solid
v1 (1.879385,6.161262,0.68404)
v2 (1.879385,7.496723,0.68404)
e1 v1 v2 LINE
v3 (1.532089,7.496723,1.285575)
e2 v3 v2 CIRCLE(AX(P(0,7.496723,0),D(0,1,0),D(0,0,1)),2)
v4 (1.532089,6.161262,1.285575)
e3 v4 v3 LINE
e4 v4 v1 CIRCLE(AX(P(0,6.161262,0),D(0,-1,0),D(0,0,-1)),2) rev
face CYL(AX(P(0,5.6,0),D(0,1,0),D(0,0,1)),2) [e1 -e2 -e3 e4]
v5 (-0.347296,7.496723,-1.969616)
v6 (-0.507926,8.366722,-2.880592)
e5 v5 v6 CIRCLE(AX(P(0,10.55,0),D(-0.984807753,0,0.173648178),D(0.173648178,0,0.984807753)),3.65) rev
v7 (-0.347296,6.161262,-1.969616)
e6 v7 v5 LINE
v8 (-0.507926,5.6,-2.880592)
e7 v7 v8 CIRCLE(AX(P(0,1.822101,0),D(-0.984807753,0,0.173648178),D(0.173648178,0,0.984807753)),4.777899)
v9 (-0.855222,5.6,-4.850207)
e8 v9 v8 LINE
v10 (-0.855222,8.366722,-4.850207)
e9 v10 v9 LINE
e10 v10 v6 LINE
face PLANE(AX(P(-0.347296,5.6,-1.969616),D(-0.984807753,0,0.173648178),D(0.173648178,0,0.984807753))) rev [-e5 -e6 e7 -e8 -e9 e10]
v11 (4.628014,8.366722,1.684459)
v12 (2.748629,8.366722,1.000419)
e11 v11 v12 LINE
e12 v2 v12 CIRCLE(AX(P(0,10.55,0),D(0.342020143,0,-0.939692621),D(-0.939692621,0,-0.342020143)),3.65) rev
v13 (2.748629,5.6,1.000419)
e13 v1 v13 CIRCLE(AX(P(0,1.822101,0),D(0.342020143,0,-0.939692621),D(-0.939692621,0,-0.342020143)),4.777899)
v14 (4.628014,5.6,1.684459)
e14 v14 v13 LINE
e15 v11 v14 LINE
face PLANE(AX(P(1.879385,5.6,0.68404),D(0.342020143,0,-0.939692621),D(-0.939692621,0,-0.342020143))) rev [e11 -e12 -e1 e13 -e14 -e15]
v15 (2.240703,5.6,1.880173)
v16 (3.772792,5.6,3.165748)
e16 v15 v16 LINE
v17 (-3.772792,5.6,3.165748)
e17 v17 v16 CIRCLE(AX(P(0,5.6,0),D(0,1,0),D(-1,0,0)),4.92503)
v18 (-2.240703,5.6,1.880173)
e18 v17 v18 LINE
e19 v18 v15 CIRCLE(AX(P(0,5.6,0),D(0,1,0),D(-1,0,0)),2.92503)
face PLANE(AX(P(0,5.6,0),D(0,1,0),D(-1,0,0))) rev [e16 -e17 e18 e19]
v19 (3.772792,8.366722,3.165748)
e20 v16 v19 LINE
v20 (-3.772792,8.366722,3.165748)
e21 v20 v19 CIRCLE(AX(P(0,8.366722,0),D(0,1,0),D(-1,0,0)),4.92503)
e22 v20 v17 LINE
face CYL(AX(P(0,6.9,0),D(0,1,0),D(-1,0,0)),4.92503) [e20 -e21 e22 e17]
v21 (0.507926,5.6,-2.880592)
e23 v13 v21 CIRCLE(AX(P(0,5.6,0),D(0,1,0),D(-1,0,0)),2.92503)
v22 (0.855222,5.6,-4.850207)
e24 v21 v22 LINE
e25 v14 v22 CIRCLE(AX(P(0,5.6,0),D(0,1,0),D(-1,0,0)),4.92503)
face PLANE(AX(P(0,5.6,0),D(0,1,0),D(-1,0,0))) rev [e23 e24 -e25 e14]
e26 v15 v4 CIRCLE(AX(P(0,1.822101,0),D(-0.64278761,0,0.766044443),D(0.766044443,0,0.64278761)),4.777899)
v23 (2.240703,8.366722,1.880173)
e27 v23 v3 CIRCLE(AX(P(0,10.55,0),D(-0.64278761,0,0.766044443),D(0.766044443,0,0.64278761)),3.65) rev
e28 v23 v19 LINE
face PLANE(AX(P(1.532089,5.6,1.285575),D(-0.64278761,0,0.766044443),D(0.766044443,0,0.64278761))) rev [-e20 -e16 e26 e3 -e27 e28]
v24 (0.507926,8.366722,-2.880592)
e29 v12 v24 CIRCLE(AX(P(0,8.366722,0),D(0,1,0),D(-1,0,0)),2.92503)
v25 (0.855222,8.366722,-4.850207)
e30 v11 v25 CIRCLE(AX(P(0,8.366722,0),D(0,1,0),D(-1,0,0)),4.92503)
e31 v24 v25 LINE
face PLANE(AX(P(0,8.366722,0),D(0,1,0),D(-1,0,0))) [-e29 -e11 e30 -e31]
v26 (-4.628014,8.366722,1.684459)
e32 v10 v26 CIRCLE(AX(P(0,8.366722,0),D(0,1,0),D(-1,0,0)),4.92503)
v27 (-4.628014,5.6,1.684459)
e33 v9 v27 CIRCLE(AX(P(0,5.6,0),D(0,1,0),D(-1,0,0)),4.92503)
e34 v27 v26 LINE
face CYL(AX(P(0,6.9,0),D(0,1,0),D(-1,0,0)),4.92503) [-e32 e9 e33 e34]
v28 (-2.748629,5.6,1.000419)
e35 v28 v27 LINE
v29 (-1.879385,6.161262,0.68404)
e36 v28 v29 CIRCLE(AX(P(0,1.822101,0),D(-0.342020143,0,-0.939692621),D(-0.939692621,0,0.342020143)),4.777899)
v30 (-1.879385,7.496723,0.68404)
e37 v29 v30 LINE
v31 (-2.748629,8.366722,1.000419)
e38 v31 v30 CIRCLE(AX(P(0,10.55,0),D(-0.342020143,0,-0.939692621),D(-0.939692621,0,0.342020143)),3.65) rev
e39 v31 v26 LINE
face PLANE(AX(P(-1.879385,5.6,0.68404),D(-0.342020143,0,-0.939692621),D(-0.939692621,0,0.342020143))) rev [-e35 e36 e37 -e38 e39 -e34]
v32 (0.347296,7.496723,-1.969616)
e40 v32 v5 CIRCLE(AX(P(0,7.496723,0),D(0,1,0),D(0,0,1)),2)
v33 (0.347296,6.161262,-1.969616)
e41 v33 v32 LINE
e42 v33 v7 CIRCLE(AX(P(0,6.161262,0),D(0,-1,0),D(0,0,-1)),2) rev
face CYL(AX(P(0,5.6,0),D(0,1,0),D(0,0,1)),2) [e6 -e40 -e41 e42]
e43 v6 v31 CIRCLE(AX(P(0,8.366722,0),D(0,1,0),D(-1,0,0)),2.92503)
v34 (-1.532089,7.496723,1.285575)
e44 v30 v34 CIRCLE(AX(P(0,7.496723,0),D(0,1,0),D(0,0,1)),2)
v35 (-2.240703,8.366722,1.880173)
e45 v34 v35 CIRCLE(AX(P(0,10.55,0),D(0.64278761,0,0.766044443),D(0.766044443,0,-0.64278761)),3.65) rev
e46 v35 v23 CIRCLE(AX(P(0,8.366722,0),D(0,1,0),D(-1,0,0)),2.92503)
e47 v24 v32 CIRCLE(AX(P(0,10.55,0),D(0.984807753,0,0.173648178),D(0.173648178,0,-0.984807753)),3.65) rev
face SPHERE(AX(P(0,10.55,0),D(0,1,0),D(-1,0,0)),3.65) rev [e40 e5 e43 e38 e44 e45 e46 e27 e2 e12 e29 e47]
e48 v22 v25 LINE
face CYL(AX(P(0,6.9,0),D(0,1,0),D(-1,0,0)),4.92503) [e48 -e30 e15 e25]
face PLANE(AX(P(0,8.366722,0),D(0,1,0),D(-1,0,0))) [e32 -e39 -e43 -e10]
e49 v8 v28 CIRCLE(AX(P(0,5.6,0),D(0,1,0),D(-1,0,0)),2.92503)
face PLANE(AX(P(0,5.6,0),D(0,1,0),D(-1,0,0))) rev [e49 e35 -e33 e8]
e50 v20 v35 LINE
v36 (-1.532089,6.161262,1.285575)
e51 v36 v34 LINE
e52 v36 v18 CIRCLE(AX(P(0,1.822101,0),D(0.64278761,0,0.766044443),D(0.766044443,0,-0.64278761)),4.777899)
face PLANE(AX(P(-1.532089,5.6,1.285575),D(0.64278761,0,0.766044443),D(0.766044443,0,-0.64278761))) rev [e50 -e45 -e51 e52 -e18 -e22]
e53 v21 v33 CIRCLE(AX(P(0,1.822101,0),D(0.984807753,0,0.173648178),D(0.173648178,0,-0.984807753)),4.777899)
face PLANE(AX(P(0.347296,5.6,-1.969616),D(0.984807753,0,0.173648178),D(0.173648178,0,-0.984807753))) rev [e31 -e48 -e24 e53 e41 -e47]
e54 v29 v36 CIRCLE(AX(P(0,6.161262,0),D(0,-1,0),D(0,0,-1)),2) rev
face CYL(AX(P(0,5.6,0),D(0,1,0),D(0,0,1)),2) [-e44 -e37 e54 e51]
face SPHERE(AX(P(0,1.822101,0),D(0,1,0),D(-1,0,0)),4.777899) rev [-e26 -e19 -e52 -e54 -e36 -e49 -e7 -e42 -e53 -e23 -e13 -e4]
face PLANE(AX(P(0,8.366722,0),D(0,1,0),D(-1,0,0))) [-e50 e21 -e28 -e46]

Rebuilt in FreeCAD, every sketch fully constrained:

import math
import FreeCAD as App
import Part
import Sketcher

V = App.Vector
Q = App.Units.Quantity

doc = App.newDocument("Part")
body = doc.addObject("PartDesign::Body", "Body")

# Sketch on XY plane
sketch1 = body.newObject("Sketcher::SketchObject", "Sketch")
sketch1.AttachmentSupport = (doc.getObject("XY_Plane"), [""])
sketch1.MapMode = "FlatFace"
sketch1.addGeometry([
    Part.LineSegment(V(-4.92503, 5.6, 0), V(-2.92503, 5.6, 0)),  # 0
    Part.ArcOfCircle(Part.Circle(V(0, 1.822101, 0), V(0, 0, 1), 4.777899), math.radians(90), math.radians(127.748745)),  # 1
    Part.LineSegment(V(0, 6.6, 0), V(0, 6.9, 0)),  # 2
    Part.ArcOfCircle(Part.Circle(V(0, 10.55, 0), V(0, 0, 1), 3.65), math.radians(-143.261891), math.radians(-90)),  # 3
    Part.LineSegment(V(-2.92503, 8.366722, 0), V(-4.92503, 8.366722, 0)),  # 4
    Part.LineSegment(V(-4.92503, 8.366722, 0), V(-4.92503, 5.6, 0)),  # 5
], False)
sketch1.addConstraint([
    Sketcher.Constraint("Coincident", 0, 2, 1, 2),
    Sketcher.Constraint("Coincident", 1, 1, 2, 1),
    Sketcher.Constraint("Coincident", 2, 2, 3, 2),
    Sketcher.Constraint("Coincident", 3, 1, 4, 1),
    Sketcher.Constraint("Coincident", 4, 2, 5, 1),
    Sketcher.Constraint("Coincident", 5, 2, 0, 1),
    Sketcher.Constraint("Horizontal", 0),
    Sketcher.Constraint("Vertical", 2),
    Sketcher.Constraint("Horizontal", 4),
    Sketcher.Constraint("Vertical", 5),
    Sketcher.Constraint("PointOnObject", 1, 3, -2),
    Sketcher.Constraint("PointOnObject", 3, 3, -2),
    Sketcher.Constraint("PointOnObject", 1, 1, -2),
    Sketcher.Constraint("Vertical", 0, 2, 3, 1),
    Sketcher.Constraint("DistanceX", 0, 1, 0, 2, Q("2 mm")),
    Sketcher.Constraint("Radius", 3, Q("3.65 mm")),
    Sketcher.Constraint("DistanceY", 2, 1, 2, 2, Q("0.3 mm")),
    Sketcher.Constraint("DistanceY", 0, 2, 1, 1, Q("1 mm")),
    Sketcher.Constraint("DistanceY", -1, 1, 0, 2, Q("5.6 mm")),
    Sketcher.Constraint("Radius", 1, Q("4.777899 mm")),
])
revolution = body.newObject("PartDesign::Revolution", "Revolution")
revolution.Profile = sketch1
revolution.ReferenceAxis = (sketch1, ["V_Axis"])
revolution.Angle = 360

# Sketch on XZ plane
sketch2 = body.newObject("Sketcher::SketchObject", "Sketch001")
sketch2.AttachmentSupport = (doc.getObject("XZ_Plane"), [""])
sketch2.MapMode = "FlatFace"
sketch2.AttachmentOffset = App.Placement(V(0, 0, -8.366722), App.Rotation())
sketch2.addGeometry([
    Part.LineSegment(V(-1.736482, -9.848078, 0), V(-0.347296, -1.969616, 0)),  # 0
    Part.ArcOfCircle(Part.Circle(V(0, 0, 0), V(0, 0, 1), 2), math.radians(-100), math.radians(-80)),  # 1
    Part.LineSegment(V(0.347296, -1.969616, 0), V(1.736482, -9.848078, 0)),  # 2
    Part.ArcOfCircle(Part.Circle(V(0, 0, 0), V(0, 0, 1), 10), math.radians(-100), math.radians(-80)),  # 3
    Part.LineSegment(V(9.396926, 3.420201, 0), V(1.879385, 0.68404, 0)),  # 4
    Part.ArcOfCircle(Part.Circle(V(0, 0, 0), V(0, 0, 1), 2), math.radians(20), math.radians(40)),  # 5
    Part.LineSegment(V(1.532089, 1.285575, 0), V(7.660444, 6.427876, 0)),  # 6
    Part.ArcOfCircle(Part.Circle(V(0, 0, 0), V(0, 0, 1), 10), math.radians(20), math.radians(40)),  # 7
    Part.LineSegment(V(-7.660444, 6.427876, 0), V(-1.532089, 1.285575, 0)),  # 8
    Part.ArcOfCircle(Part.Circle(V(0, 0, 0), V(0, 0, 1), 2), math.radians(140), math.radians(160)),  # 9
    Part.LineSegment(V(-1.879385, 0.68404, 0), V(-9.396926, 3.420201, 0)),  # 10
    Part.ArcOfCircle(Part.Circle(V(0, 0, 0), V(0, 0, 1), 10), math.radians(140), math.radians(160)),  # 11
], False)
sketch2.addConstraint([
    Sketcher.Constraint("Coincident", 0, 2, 1, 1),
    Sketcher.Constraint("Coincident", 1, 2, 2, 1),
    Sketcher.Constraint("Coincident", 2, 2, 3, 2),
    Sketcher.Constraint("Coincident", 3, 1, 0, 1),
    Sketcher.Constraint("Coincident", 4, 2, 5, 1),
    Sketcher.Constraint("Coincident", 5, 2, 6, 1),
    Sketcher.Constraint("Coincident", 6, 2, 7, 2),
    Sketcher.Constraint("Coincident", 7, 1, 4, 1),
    Sketcher.Constraint("Coincident", 8, 2, 9, 1),
    Sketcher.Constraint("Coincident", 9, 2, 10, 1),
    Sketcher.Constraint("Coincident", 10, 2, 11, 2),
    Sketcher.Constraint("Coincident", 11, 1, 8, 1),
    Sketcher.Constraint("Coincident", 1, 3, -1, 1),
    Sketcher.Constraint("Coincident", 3, 3, -1, 1),
    Sketcher.Constraint("Coincident", 5, 3, -1, 1),
    Sketcher.Constraint("Coincident", 7, 3, -1, 1),
    Sketcher.Constraint("Coincident", 9, 3, -1, 1),
    Sketcher.Constraint("Coincident", 11, 3, -1, 1),
    Sketcher.Constraint("Equal", 1, 5),
    Sketcher.Constraint("Equal", 3, 7),
    Sketcher.Constraint("Equal", 5, 9),
    Sketcher.Constraint("Equal", 7, 11),
    Sketcher.Constraint("Horizontal", 0, 2, 1, 2),
    Sketcher.Constraint("Horizontal", 2, 2, 3, 1),
    Sketcher.Constraint("Horizontal", 5, 2, 8, 2),
    Sketcher.Constraint("Horizontal", 4, 2, 9, 2),
    Sketcher.Constraint("Horizontal", 7, 1, 10, 2),
    Sketcher.Constraint("Horizontal", 6, 2, 11, 1),
    Sketcher.Constraint("Radius", 1, Q("2 mm")),
    Sketcher.Constraint("Radius", 3, Q("10 mm")),
    Sketcher.Constraint("Angle", 0, Q("80 deg")),
    Sketcher.Constraint("Angle", 4, Q("-160 deg")),
    Sketcher.Constraint("Angle", 6, Q("40 deg")),
    Sketcher.Constraint("DistanceY", -1, 1, 7, 1, Q("3.420201 mm")),
    Sketcher.Constraint("DistanceX", -1, 1, 2, 2, Q("1.736482 mm")),
    Sketcher.Constraint("DistanceX", -1, 1, 5, 2, Q("1.532089 mm")),
])
pocket1 = body.newObject("PartDesign::Pocket", "Pocket")
pocket1.Profile = sketch2
pocket1.Type = "ThroughAll"
pocket1.Reversed = True

doc.recompute()
